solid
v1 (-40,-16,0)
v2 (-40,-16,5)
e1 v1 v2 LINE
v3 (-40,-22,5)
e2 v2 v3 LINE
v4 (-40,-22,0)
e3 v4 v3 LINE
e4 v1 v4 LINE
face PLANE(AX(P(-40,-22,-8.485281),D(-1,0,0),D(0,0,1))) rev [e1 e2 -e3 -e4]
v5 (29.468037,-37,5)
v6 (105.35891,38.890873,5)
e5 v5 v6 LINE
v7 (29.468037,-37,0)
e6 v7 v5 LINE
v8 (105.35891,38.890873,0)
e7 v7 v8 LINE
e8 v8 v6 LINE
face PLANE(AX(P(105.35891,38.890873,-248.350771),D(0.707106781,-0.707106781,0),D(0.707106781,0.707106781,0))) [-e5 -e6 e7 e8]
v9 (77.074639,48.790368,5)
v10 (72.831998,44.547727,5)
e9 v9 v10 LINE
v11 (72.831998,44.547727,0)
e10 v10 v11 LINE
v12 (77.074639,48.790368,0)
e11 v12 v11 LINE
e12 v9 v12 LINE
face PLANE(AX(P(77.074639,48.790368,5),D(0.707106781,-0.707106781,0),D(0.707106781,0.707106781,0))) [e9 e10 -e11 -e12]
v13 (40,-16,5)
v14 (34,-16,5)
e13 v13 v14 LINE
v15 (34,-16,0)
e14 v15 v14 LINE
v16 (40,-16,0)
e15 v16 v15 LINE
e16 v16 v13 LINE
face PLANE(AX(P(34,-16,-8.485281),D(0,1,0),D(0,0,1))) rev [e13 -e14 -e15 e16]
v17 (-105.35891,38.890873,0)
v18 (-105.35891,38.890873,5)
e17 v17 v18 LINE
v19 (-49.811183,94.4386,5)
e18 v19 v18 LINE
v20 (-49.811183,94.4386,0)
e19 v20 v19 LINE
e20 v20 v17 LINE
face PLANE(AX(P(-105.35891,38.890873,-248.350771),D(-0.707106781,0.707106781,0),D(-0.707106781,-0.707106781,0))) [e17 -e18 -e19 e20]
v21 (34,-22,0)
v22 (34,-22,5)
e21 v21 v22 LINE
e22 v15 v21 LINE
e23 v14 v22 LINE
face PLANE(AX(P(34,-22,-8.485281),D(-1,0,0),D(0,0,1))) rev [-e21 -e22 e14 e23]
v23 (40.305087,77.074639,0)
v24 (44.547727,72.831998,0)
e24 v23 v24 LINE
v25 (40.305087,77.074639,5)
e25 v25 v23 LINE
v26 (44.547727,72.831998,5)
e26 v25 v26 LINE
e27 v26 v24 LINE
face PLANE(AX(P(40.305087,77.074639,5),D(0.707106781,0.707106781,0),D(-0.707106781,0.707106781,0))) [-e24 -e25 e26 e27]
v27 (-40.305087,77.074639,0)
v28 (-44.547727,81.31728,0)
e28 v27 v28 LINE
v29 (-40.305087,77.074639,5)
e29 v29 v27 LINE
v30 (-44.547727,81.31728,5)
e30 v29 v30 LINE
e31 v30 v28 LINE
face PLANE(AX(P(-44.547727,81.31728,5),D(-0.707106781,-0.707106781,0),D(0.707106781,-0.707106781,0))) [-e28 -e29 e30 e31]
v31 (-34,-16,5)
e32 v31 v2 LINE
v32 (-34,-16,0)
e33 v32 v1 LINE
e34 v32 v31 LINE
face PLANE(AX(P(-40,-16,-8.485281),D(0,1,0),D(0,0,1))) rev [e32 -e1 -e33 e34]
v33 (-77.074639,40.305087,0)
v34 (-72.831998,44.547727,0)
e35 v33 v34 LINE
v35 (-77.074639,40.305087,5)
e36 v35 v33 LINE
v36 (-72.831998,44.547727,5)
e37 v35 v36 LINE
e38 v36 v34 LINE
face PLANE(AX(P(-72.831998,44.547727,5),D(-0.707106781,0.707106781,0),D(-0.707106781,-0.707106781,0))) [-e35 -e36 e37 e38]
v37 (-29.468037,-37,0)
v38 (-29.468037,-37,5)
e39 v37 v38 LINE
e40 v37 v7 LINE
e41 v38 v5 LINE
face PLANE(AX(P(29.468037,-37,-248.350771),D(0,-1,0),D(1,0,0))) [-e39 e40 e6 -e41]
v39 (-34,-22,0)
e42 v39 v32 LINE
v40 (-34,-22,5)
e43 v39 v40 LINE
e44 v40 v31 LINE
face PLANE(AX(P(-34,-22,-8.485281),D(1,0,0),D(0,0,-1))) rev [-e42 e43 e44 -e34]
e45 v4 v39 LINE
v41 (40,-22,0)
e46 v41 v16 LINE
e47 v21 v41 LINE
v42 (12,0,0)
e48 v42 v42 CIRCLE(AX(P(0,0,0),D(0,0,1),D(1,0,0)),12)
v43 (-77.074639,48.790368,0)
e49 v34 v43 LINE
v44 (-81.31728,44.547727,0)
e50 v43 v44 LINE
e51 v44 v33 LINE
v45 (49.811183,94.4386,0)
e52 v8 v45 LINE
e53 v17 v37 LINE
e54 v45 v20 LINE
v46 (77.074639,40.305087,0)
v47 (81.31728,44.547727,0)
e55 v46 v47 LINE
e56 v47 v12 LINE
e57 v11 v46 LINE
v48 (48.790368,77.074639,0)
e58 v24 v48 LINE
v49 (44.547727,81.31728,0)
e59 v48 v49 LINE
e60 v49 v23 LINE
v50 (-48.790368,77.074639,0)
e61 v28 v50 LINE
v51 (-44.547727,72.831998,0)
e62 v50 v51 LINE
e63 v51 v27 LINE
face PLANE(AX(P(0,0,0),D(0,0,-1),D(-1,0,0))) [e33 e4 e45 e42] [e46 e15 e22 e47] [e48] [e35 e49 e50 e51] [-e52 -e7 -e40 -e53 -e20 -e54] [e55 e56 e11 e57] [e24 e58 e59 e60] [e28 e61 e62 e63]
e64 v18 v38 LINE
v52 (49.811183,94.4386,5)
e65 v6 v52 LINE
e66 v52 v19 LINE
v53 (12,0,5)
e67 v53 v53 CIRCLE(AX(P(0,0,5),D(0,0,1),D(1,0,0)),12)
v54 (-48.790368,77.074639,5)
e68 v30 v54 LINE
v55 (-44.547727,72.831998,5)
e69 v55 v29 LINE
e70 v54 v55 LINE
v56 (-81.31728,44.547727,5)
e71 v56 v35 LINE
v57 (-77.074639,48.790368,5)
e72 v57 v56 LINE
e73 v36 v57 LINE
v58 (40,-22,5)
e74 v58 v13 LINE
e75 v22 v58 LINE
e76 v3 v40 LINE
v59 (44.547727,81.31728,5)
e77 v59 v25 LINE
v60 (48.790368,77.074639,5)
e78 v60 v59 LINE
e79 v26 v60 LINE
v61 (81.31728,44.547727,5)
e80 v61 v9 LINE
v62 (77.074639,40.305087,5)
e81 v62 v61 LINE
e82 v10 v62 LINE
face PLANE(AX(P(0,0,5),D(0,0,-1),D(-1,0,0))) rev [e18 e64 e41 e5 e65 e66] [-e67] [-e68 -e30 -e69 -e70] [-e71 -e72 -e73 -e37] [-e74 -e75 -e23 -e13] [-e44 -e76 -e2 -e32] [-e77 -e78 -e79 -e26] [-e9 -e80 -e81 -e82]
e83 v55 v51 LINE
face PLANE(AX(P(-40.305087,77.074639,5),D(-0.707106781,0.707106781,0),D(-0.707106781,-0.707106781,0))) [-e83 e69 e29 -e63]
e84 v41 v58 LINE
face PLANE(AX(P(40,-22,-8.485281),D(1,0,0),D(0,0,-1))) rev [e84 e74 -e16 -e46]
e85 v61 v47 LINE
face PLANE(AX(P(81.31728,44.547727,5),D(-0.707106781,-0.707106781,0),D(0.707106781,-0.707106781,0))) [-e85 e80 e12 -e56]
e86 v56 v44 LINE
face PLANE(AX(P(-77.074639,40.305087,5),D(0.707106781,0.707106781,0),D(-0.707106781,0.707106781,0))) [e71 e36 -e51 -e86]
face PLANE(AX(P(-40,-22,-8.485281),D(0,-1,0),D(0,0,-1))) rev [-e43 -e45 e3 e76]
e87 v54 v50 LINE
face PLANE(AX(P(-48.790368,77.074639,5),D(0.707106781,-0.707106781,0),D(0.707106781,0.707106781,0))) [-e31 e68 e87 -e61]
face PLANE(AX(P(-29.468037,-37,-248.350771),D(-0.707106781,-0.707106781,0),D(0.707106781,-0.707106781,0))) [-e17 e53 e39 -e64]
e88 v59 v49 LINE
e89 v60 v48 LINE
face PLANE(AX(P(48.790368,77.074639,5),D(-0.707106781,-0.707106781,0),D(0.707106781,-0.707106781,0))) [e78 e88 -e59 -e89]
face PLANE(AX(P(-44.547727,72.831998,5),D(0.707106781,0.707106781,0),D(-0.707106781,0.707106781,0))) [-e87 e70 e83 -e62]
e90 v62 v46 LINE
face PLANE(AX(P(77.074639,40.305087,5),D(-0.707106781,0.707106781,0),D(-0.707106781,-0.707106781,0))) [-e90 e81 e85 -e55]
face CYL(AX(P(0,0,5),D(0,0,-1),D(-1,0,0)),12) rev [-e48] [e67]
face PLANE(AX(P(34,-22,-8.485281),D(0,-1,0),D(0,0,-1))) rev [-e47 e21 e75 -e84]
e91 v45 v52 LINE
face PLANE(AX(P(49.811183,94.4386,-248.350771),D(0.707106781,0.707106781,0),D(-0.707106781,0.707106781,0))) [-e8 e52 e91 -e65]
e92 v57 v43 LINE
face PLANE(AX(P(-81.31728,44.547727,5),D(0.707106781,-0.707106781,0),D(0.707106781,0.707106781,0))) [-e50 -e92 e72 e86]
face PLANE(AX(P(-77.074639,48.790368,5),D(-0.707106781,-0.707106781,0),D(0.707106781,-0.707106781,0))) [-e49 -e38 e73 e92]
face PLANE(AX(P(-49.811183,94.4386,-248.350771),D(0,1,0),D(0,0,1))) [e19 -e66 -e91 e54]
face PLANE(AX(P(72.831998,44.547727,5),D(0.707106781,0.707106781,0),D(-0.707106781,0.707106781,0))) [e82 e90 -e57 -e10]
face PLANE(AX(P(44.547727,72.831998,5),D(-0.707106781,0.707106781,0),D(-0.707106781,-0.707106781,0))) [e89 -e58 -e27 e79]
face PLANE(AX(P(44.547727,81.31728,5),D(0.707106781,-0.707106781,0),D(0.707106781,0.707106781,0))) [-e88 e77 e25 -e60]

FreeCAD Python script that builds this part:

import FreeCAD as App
import Part
import Sketcher
Q = App.Units.Quantity


def add_polygon(sketch, points):
    """Adds a closed chain of lines whose ends are joined by coincident constraints."""
    first, n = sketch.GeometryCount, len(points)
    for a, b in zip(points, points[1:] + points[:1]):
        sketch.addGeometry(Part.LineSegment(App.Vector(*a, 0), App.Vector(*b, 0)), False)
    for i in range(n):
        sketch.addConstraint(Sketcher.Constraint("Coincident", first + i, 2, first + (i + 1) % n, 1))

doc = App.newDocument("Part")
body = doc.addObject("PartDesign::Body", "Body")

sketch1 = body.newObject("Sketcher::SketchObject", "Sketch")
sketch1.AttachmentSupport = (doc.getObject("XY_Plane"), [""])
sketch1.MapMode = "FlatFace"
add_polygon(sketch1, [(-43.84062, 83.4386), (-77.781746, 49.497475), (-88.388348, 38.890873), (-27.497475, -22), (27.497475, -22), (88.388348, 38.890873), (77.781746, 49.497475), (43.84062, 83.4386)])
sketch1.addGeometry(Part.Circle(App.Vector(0, 0, 0), App.Vector(0, 0, 1), 12), False)
add_polygon(sketch1, [(72.831998, 44.547727), (77.074639, 48.790368), (81.31728, 44.547727), (77.074639, 40.305087)])
add_polygon(sketch1, [(40.305087, 77.074639), (44.547727, 81.31728), (48.790368, 77.074639), (44.547727, 72.831998)])
add_polygon(sketch1, [(-81.31728, 44.547727), (-77.074639, 48.790368), (-72.831998, 44.547727), (-77.074639, 40.305087)])
add_polygon(sketch1, [(-48.790368, 77.074639), (-44.547727, 81.31728), (-40.305087, 77.074639), (-44.547727, 72.831998)])
sketch1.addConstraint([
    Sketcher.Constraint("Horizontal", 3),
    Sketcher.Constraint("Horizontal", 7),
    Sketcher.Constraint("Coincident", 8, 3, -1, 1),
    Sketcher.Constraint("Symmetric", 1, 2, 4, 2, -2),
    Sketcher.Constraint("Symmetric", 0, 2, 5, 2, -2),
    Sketcher.Constraint("Symmetric", 9, 2, 17, 2, -2),
    Sketcher.Constraint("Symmetric", 12, 2, 18, 2, -2),
    Sketcher.Constraint("Symmetric", 11, 2, 19, 2, -2),
    Sketcher.Constraint("Symmetric", 10, 2, 20, 2, -2),
    Sketcher.Constraint("Symmetric", 13, 2, 21, 2, -2),
    Sketcher.Constraint("Symmetric", 16, 2, 22, 2, -2),
    Sketcher.Constraint("Symmetric", 15, 2, 23, 2, -2),
    Sketcher.Constraint("Symmetric", 14, 2, 24, 2, -2),
    Sketcher.Constraint("Parallel", 0, 1),
    Sketcher.Constraint("Perpendicular", 1, 2),
    Sketcher.Constraint("Perpendicular", 2, 4),
    Sketcher.Constraint("Perpendicular", 4, 5),
    Sketcher.Constraint("Parallel", 5, 6),
    Sketcher.Constraint("Perpendicular", 6, 9),
    Sketcher.Constraint("Perpendicular", 9, 10),
    Sketcher.Constraint("Perpendicular", 10, 11),
    Sketcher.Constraint("Perpendicular", 11, 12),
    Sketcher.Constraint("Perpendicular", 12, 13),
    Sketcher.Constraint("Perpendicular", 13, 14),
    Sketcher.Constraint("Perpendicular", 14, 15),
    Sketcher.Constraint("Perpendicular", 15, 16),
    Sketcher.Constraint("Horizontal", 10, 2, 12, 2),
    Sketcher.Constraint("Horizontal", 14, 2, 16, 2),
    Sketcher.Constraint("Equal", 12, 13),
    Sketcher.Constraint("Diameter", 8, Q("24 mm")),
    Sketcher.Constraint("Distance", 0, Q("48 mm")),
    Sketcher.Constraint("Distance", 1, Q("15 mm")),
    Sketcher.Constraint("Distance", 9, Q("6 mm")),
    Sketcher.Constraint("DistanceY", 2, 2, -1, 1, Q("22 mm")),
    Sketcher.Constraint("DistanceX", -1, 1, 12, 2, Q("72.831998 mm")),
    Sketcher.Constraint("DistanceY", -1, 1, 15, 2, Q("72.831998 mm")),
    Sketcher.Constraint("Distance", 2, Q("86.112698 mm")),
    Sketcher.Constraint("DistanceX", 3, 1, 3, 2, Q("54.994949 mm")),
    Sketcher.Constraint("DistanceY", 11, 2, 5, 2, Q("9.192388 mm")),
    Sketcher.Constraint("DistanceX", 13, 2, 9, 2, Q("32.526912 mm")),
])
pad1 = body.newObject("PartDesign::Pad", "Pad")
pad1.Profile = sketch1
pad1.Length = 5

sketch2 = body.newObject("Sketcher::SketchObject", "Sketch001")
sketch2.AttachmentSupport = (doc.getObject("XY_Plane"), [""])
sketch2.MapMode = "FlatFace"
sketch2.AttachmentOffset = App.Placement(App.Vector(0, 0, 5), App.Rotation())
add_polygon(sketch2, [(-49.811183, 94.4386), (-105.35891, 38.890873), (-29.468037, -37), (29.468037, -37), (105.35891, 38.890873), (49.811183, 94.4386)])
add_polygon(sketch2, [(-43.84062, 83.4386), (43.84062, 83.4386), (88.388348, 38.890873), (27.497475, -22), (-27.497475, -22), (-88.388348, 38.890873)])
sketch2.addConstraint([
    Sketcher.Constraint("Horizontal", 2),
    Sketcher.Constraint("Horizontal", 5),
    Sketcher.Constraint("Horizontal", 6),
    Sketcher.Constraint("Horizontal", 9),
    Sketcher.Constraint("Symmetric", 0, 2, 3, 2, -2),
    Sketcher.Constraint("Symmetric", 7, 2, 10, 2, -2),
    Sketcher.Constraint("Perpendicular", 0, 1),
    Sketcher.Constraint("Perpendicular", 1, 3),
    Sketcher.Constraint("Perpendicular", 3, 4),
    Sketcher.Constraint("Parallel", 4, 7),
    Sketcher.Constraint("Perpendicular", 7, 8),
    Sketcher.Constraint("Perpendicular", 8, 10),
    Sketcher.Constraint("Perpendicular", 10, 11),
    Sketcher.Constraint("Horizontal", 3, 2, 7, 2),
    Sketcher.Constraint("Equal", 1, 3),
    Sketcher.Constraint("Distance", 7, Q("63 mm")),
    Sketcher.Constraint("DistanceY", 1, 2, -1, 1, Q("37 mm")),
    Sketcher.Constraint("DistanceY", 8, 2, -1, 1, Q("22 mm")),
    Sketcher.Constraint("DistanceY", 6, 2, 4, 2, Q("11 mm")),
    Sketcher.Constraint("Distance", 1, Q("107.325902 mm")),
    Sketcher.Constraint("DistanceX", 6, 1, 6, 2, Q("87.681241 mm")),
    Sketcher.Constraint("DistanceX", 2, 1, 2, 2, Q("58.936075 mm")),
])
pad2 = body.newObject("PartDesign::Pad", "Pad001")
pad2.Profile = sketch2
pad2.Length = 5
pad2.Reversed = True

sketch3 = body.newObject("Sketcher::SketchObject", "Sketch002")
sketch3.AttachmentSupport = (doc.getObject("XY_Plane"), [""])
sketch3.MapMode = "FlatFace"
sketch3.AttachmentOffset = App.Placement(App.Vector(0, 0, 5), App.Rotation())
add_polygon(sketch3, [(-40, -16), (-40, -22), (-34, -22), (-34, -16)])
add_polygon(sketch3, [(34, -16), (34, -22), (40, -22), (40, -16)])
sketch3.addConstraint([
    Sketcher.Constraint("Vertical", 0),
    Sketcher.Constraint("Horizontal", 1),
    Sketcher.Constraint("Vertical", 2),
    Sketcher.Constraint("Horizontal", 3),
    Sketcher.Constraint("Vertical", 4),
    Sketcher.Constraint("Horizontal", 5),
    Sketcher.Constraint("Vertical", 6),
    Sketcher.Constraint("Horizontal", 7),
    Sketcher.Constraint("Symmetric", 1, 2, 4, 2, -2),
    Sketcher.Constraint("Symmetric", 3, 2, 6, 2, -2),
    Sketcher.Constraint("Equal", 7, 0),
    Sketcher.Constraint("DistanceX", 1, 1, 1, 2, Q("6 mm")),
    Sketcher.Constraint("DistanceX", 0, 2, -1, 1, Q("40 mm")),
    Sketcher.Constraint("DistanceY", 0, 2, -1, 1, Q("22 mm")),
])
pocket1 = body.newObject("PartDesign::Pocket", "Pocket")
pocket1.Profile = sketch3
pocket1.Length = 5

doc.recompute()
